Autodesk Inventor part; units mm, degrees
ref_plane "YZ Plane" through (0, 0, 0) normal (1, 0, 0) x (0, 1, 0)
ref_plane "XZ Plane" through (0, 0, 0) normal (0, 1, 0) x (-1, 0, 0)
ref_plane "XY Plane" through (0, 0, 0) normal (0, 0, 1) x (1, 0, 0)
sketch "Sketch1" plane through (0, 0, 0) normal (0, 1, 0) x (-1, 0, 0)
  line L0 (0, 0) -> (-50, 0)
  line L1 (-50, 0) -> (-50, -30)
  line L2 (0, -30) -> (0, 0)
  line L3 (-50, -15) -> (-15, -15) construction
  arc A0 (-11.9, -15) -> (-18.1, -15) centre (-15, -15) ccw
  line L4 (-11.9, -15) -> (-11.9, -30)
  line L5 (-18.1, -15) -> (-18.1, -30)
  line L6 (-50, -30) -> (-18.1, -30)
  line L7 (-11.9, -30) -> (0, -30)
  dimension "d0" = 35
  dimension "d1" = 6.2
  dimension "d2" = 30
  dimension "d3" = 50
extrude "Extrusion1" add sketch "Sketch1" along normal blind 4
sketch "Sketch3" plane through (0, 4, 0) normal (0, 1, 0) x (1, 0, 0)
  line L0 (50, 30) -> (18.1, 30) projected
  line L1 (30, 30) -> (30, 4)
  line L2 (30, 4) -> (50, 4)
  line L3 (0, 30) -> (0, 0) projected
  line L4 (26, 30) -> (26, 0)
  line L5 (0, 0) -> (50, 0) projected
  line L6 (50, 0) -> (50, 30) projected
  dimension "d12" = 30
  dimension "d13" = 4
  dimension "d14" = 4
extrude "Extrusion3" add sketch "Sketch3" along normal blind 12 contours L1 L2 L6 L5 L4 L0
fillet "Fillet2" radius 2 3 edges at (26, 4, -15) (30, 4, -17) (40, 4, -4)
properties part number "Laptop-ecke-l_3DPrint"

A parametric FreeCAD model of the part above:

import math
import FreeCAD as App
import Part
import Sketcher
from FreeCAD import Vector


def edges_at(feature, points):
    """Names of the edges that pass closest to the given points."""
    edges = feature.Shape.Edges
    near = lambda p: min(range(len(edges)), key=lambda i: edges[i].distToShape(Part.Vertex(*p))[0])
    return sorted({f"Edge{near(p) + 1}" for p in points})


def add_polygon(sketch, points):
    """Adds a closed chain of lines whose ends are joined by coincident constraints."""
    first, n = sketch.GeometryCount, len(points)
    for a, b in zip(points, points[1:] + points[:1]):
        sketch.addGeometry(Part.LineSegment(App.Vector(*a, 0), App.Vector(*b, 0)), False)
    for i in range(n):
        sketch.addConstraint(Sketcher.Constraint("Coincident", first + i, 2, first + (i + 1) % n, 1))

doc = App.newDocument("Part")
body = doc.addObject("PartDesign::Body", "Body")

# Sketch on XZ plane
sketch1 = body.newObject("Sketcher::SketchObject", "Sketch")
sketch1.AttachmentSupport = (doc.getObject("XZ_Plane"), [""])
sketch1.MapMode = "FlatFace"
sketch1.addGeometry(Part.LineSegment(Vector(0, -30, 0), Vector(0, 0, 0)), False)
sketch1.addGeometry(Part.LineSegment(Vector(0, 0, 0), Vector(50, 0, 0)), False)
sketch1.addGeometry(Part.LineSegment(Vector(50, 0, 0), Vector(50, -30, 0)), False)
sketch1.addGeometry(Part.LineSegment(Vector(50, -30, 0), Vector(18.1, -30, 0)), False)
sketch1.addGeometry(Part.LineSegment(Vector(18.1, -30, 0), Vector(18.1, -15, 0)), False)
sketch1.addGeometry(Part.ArcOfCircle(Part.Circle(Vector(15, -15, 0), Vector(0, 0, 1), 3.1), math.radians(0), math.radians(180)), False)
sketch1.addGeometry(Part.LineSegment(Vector(11.9, -15, 0), Vector(11.9, -30, 0)), False)
sketch1.addGeometry(Part.LineSegment(Vector(11.9, -30, 0), Vector(0, -30, 0)), False)
sketch1.addConstraint(Sketcher.Constraint("Coincident", 0, 2, 1, 1))
sketch1.addConstraint(Sketcher.Constraint("Coincident", 1, 2, 2, 1))
sketch1.addConstraint(Sketcher.Constraint("Coincident", 2, 2, 3, 1))
sketch1.addConstraint(Sketcher.Constraint("Coincident", 3, 2, 4, 1))
sketch1.addConstraint(Sketcher.Constraint("Tangent", 4, 2, 5, 1))
sketch1.addConstraint(Sketcher.Constraint("Tangent", 5, 2, 6, 1))
sketch1.addConstraint(Sketcher.Constraint("Coincident", 6, 2, 7, 1))
sketch1.addConstraint(Sketcher.Constraint("Coincident", 7, 2, 0, 1))
sketch1.addConstraint(Sketcher.Constraint("Vertical", 0))
sketch1.addConstraint(Sketcher.Constraint("Horizontal", 1))
sketch1.addConstraint(Sketcher.Constraint("Vertical", 2))
sketch1.addConstraint(Sketcher.Constraint("Horizontal", 3))
sketch1.addConstraint(Sketcher.Constraint("Vertical", 4))
sketch1.addConstraint(Sketcher.Constraint("Vertical", 6))
sketch1.addConstraint(Sketcher.Constraint("Horizontal", 7))
sketch1.addConstraint(Sketcher.Constraint("Coincident", 0, 2, -1, 1))
sketch1.addConstraint(Sketcher.Constraint("Horizontal", 3, 2, 6, 2))
sketch1.addConstraint(Sketcher.Constraint("Radius", 5, 3.1))
sketch1.addConstraint(Sketcher.Constraint("DistanceX", 1, 1, 1, 2, 50.0))
sketch1.addConstraint(Sketcher.Constraint("DistanceY", 0, 1, 0, 2, 30.0))
sketch1.addConstraint(Sketcher.Constraint("DistanceX", 5, 3, 1, 2, 35.0))
sketch1.addConstraint(Sketcher.Constraint("DistanceY", 4, 1, 4, 2, 15.0))
pad1 = body.newObject("PartDesign::Pad", "Pad")
pad1.Profile = sketch1
pad1.Length = 4
pad1.Reversed = True

# Sketch on XZ plane
sketch2 = body.newObject("Sketcher::SketchObject", "Sketch001")
sketch2.AttachmentSupport = (doc.getObject("XZ_Plane"), [""])
sketch2.MapMode = "FlatFace"
sketch2.AttachmentOffset = App.Placement(Vector(0, 0, -4), App.Rotation())
add_polygon(sketch2, [(30, -4), (30, -30), (26, -30), (26, 0), (50, 0), (50, -4)])  # lines 0-5
sketch2.addConstraint(Sketcher.Constraint("Vertical", 0))
sketch2.addConstraint(Sketcher.Constraint("Horizontal", 1))
sketch2.addConstraint(Sketcher.Constraint("Vertical", 2))
sketch2.addConstraint(Sketcher.Constraint("Horizontal", 3))
sketch2.addConstraint(Sketcher.Constraint("Vertical", 4))
sketch2.addConstraint(Sketcher.Constraint("Horizontal", 5))
sketch2.addConstraint(Sketcher.Constraint("PointOnObject", 2, 2, -1))
sketch2.addConstraint(Sketcher.Constraint("Equal", 1, 4))
sketch2.addConstraint(Sketcher.Constraint("DistanceX", 1, 2, 1, 1, 4.0))
sketch2.addConstraint(Sketcher.Constraint("DistanceY", 2, 1, 2, 2, 30.0))
sketch2.addConstraint(Sketcher.Constraint("DistanceX", -1, 1, 0, 2, 30.0))
sketch2.addConstraint(Sketcher.Constraint("DistanceX", 3, 1, 3, 2, 24.0))
pad2 = body.newObject("PartDesign::Pad", "Pad001")
pad2.Profile = sketch2
pad2.Length = 12
pad2.Reversed = True
doc.recompute()

fillet = body.newObject("PartDesign::Fillet", "Fillet")
fillet.Base = (pad2, edges_at(pad2, [(26, 4, -15), (30, 4, -17), (40, 4, -4)]))
fillet.Radius = 2

doc.recompute()
